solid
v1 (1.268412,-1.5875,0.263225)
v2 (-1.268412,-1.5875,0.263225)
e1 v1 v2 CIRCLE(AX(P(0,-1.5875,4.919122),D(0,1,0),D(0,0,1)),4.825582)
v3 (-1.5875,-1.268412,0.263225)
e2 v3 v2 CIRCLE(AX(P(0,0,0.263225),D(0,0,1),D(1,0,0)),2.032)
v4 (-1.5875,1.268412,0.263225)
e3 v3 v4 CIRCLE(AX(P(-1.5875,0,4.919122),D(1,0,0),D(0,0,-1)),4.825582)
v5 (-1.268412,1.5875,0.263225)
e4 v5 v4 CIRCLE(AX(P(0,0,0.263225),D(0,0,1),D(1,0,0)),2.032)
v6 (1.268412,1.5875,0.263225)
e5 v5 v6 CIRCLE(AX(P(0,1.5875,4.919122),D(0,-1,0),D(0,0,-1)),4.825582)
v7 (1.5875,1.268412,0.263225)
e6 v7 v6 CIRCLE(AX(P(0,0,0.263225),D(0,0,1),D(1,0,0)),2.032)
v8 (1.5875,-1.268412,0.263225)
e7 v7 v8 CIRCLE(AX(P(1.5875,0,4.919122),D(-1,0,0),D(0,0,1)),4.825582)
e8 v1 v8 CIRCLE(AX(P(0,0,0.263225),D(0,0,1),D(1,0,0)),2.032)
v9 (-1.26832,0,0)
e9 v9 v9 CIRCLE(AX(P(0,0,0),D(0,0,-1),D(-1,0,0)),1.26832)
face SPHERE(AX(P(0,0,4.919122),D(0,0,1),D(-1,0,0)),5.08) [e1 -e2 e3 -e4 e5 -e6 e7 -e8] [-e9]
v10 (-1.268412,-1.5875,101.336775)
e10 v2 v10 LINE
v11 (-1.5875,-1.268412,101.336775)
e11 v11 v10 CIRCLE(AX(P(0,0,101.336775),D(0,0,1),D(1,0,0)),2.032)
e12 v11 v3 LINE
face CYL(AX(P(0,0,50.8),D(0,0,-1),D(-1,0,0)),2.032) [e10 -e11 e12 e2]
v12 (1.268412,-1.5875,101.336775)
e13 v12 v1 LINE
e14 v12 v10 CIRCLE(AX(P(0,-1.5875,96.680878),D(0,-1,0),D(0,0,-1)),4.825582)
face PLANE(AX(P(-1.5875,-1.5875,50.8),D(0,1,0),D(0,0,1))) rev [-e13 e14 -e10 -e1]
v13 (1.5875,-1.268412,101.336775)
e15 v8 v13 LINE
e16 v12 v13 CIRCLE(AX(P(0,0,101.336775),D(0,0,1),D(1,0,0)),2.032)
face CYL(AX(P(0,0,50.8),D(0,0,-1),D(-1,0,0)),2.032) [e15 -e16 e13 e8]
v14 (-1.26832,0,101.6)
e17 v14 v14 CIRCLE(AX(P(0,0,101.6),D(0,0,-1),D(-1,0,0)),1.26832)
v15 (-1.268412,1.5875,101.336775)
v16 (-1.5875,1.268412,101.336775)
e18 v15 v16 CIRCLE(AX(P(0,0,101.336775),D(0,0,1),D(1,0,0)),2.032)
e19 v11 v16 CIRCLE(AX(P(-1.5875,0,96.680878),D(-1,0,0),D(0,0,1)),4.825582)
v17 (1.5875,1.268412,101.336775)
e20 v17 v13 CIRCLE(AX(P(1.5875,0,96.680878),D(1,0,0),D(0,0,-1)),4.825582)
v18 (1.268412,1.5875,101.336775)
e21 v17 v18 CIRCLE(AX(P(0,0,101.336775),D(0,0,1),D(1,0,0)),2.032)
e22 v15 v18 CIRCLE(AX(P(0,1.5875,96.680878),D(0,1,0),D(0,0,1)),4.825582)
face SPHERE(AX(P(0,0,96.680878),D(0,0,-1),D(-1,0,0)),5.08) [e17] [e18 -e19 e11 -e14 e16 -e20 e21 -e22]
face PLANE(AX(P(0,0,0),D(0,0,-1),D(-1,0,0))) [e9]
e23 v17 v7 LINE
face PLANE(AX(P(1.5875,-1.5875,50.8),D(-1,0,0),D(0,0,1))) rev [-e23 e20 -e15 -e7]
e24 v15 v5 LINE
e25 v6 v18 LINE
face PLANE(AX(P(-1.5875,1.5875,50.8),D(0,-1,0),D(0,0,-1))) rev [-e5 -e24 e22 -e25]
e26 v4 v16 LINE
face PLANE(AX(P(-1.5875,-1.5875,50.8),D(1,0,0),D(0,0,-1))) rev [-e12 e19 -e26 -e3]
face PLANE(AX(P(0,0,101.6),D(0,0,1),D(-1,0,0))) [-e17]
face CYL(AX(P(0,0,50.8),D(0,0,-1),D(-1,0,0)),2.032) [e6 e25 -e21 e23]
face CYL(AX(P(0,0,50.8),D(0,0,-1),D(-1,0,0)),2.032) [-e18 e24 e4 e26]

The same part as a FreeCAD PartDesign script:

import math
import FreeCAD as App
import Part
import Sketcher

V = App.Vector
Q = App.Units.Quantity

doc = App.newDocument("Part")
body = doc.addObject("PartDesign::Body", "Body")

sketch1 = doc.addObject("Sketcher::SketchObject", "Sketch")
body.addObject(sketch1)
sketch1.AttachmentSupport = (doc.XY_Plane, [""])
sketch1.MapMode = "FlatFace"
sketch1.addGeometry([
    Part.LineSegment(V(-1.6, 1.6, 0), V(-1.6, -1.6, 0)),
    Part.LineSegment(V(-1.6, -1.6, 0), V(1.6, -1.6, 0)),
    Part.LineSegment(V(1.6, -1.6, 0), V(1.6, 1.6, 0)),
    Part.LineSegment(V(1.6, 1.6, 0), V(-1.6, 1.6, 0)),
], False)
sketch1.addConstraint([
    Sketcher.Constraint("Coincident", 0, 2, 1, 1),
    Sketcher.Constraint("Coincident", 1, 2, 2, 1),
    Sketcher.Constraint("Coincident", 2, 2, 3, 1),
    Sketcher.Constraint("Coincident", 3, 2, 0, 1),
    Sketcher.Constraint("Vertical", 0),
    Sketcher.Constraint("Horizontal", 1),
    Sketcher.Constraint("Vertical", 2),
    Sketcher.Constraint("Horizontal", 3),
    Sketcher.Constraint("Symmetric", 0, 2, 2, 2, -1, 1),
    Sketcher.Constraint("Equal", 3, 0),
    Sketcher.Constraint("DistanceX", 1, 1, 1, 2, Q("0.125 in")),
])
pad1 = doc.addObject("PartDesign::Pad", "Pad")
body.addObject(pad1)
pad1.Profile = sketch1
pad1.Length = Q("2 in")

sketch2 = doc.addObject("Sketcher::SketchObject", "Sketch001")
body.addObject(sketch2)
sketch2.AttachmentSupport = (doc.XY_Plane, [""])
sketch2.MapMode = "FlatFace"
sketch2.addGeometry([
    Part.LineSegment(V(7.7, 7.7, 0), V(7.7, -7.7, 0)),
    Part.LineSegment(V(7.7, -7.7, 0), V(-7.7, -7.7, 0)),
    Part.LineSegment(V(-7.7, -7.7, 0), V(-7.7, 7.7, 0)),
    Part.LineSegment(V(-7.7, 7.7, 0), V(7.7, 7.7, 0)),
    Part.Circle(V(0, 0, 0), V(0, 0, 1), 2),
], False)
sketch2.addConstraint([
    Sketcher.Constraint("Coincident", 0, 2, 1, 1),
    Sketcher.Constraint("Coincident", 1, 2, 2, 1),
    Sketcher.Constraint("Coincident", 2, 2, 3, 1),
    Sketcher.Constraint("Coincident", 3, 2, 0, 1),
    Sketcher.Constraint("Vertical", 0),
    Sketcher.Constraint("Horizontal", 1),
    Sketcher.Constraint("Vertical", 2),
    Sketcher.Constraint("Horizontal", 3),
    Sketcher.Constraint("Coincident", 4, 3, -1, 1),
    Sketcher.Constraint("Diameter", 4, Q("0.16 in")),
    Sketcher.Constraint("DistanceX", 1, 2, 1, 1, 15.376),
    Sketcher.Constraint("DistanceY", 0, 2, 0, 1, 15.375),
    Sketcher.Constraint("DistanceX", -1, 1, 0, 2, 7.688),
    Sketcher.Constraint("DistanceY", 0, 2, -1, 1, 7.688),
])
pocket1 = doc.addObject("PartDesign::Pocket", "Pocket")
body.addObject(pocket1)
pocket1.Profile = sketch2
pocket1.Type = "ThroughAll"
pocket1.Reversed = True

sketch3 = doc.addObject("Sketcher::SketchObject", "Sketch002")
body.addObject(sketch3)
sketch3.AttachmentSupport = (doc.XZ_Plane, [""])
sketch3.MapMode = "FlatFace"
sketch3.addGeometry([
    Part.LineSegment(V(-5, -6, 0), V(-5, 4, 0)),
    Part.ArcOfCircle(Part.Circle(V(0, 5, 0), V(0, 0, 1), 5), math.radians(-174), math.radians(-90)),
    Part.LineSegment(V(0, 0, 0), V(0, -6, 0)),
    Part.LineSegment(V(0, -6, 0), V(-5, -6, 0)),
], False)
sketch3.addConstraint([
    Sketcher.Constraint("Coincident", 0, 2, 1, 1),
    Sketcher.Constraint("Coincident", 1, 2, 2, 1),
    Sketcher.Constraint("Coincident", 2, 2, 3, 1),
    Sketcher.Constraint("Coincident", 3, 2, 0, 1),
    Sketcher.Constraint("Vertical", 0),
    Sketcher.Constraint("Vertical", 2),
    Sketcher.Constraint("Horizontal", 3),
    Sketcher.Constraint("PointOnObject", 1, 3, -2),
    Sketcher.Constraint("PointOnObject", 1, 2, -2),
    Sketcher.Constraint("Radius", 1, Q("0.2 in")),
    Sketcher.Constraint("DistanceX", 3, 2, 3, 1, 5.053686),
    Sketcher.Constraint("DistanceY", 0, 1, 0, 2, 10.143263),
    Sketcher.Constraint("DistanceY", 2, 2, -1, 1, 5.740531),
])
groove = doc.addObject("PartDesign::Groove", "Groove")
body.addObject(groove)
groove.Profile = sketch3
groove.ReferenceAxis = (sketch3, ["V_Axis"])
groove.Angle = 360
body2 = doc.addObject("PartDesign::Body", "Body001")
doc.recompute()

body2.BaseFeature = body
doc.recompute()

mirroring = doc.addObject("Part::Mirroring", "Mirroring")
mirroring.Source = body
mirroring.Base = V(0, 0, 50.8)
mirroring.Normal = V(0, 0, -1)
body3 = doc.addObject("PartDesign::Body", "Body002")
body3.BaseFeature = mirroring
boolean = doc.addObject("PartDesign::Boolean", "Boolean")
body2.addObject(boolean)
boolean.Type = "Fuse"
boolean.addObjects([body3])
doc.recompute()
mirroring.Visibility = False

doc.recompute()
